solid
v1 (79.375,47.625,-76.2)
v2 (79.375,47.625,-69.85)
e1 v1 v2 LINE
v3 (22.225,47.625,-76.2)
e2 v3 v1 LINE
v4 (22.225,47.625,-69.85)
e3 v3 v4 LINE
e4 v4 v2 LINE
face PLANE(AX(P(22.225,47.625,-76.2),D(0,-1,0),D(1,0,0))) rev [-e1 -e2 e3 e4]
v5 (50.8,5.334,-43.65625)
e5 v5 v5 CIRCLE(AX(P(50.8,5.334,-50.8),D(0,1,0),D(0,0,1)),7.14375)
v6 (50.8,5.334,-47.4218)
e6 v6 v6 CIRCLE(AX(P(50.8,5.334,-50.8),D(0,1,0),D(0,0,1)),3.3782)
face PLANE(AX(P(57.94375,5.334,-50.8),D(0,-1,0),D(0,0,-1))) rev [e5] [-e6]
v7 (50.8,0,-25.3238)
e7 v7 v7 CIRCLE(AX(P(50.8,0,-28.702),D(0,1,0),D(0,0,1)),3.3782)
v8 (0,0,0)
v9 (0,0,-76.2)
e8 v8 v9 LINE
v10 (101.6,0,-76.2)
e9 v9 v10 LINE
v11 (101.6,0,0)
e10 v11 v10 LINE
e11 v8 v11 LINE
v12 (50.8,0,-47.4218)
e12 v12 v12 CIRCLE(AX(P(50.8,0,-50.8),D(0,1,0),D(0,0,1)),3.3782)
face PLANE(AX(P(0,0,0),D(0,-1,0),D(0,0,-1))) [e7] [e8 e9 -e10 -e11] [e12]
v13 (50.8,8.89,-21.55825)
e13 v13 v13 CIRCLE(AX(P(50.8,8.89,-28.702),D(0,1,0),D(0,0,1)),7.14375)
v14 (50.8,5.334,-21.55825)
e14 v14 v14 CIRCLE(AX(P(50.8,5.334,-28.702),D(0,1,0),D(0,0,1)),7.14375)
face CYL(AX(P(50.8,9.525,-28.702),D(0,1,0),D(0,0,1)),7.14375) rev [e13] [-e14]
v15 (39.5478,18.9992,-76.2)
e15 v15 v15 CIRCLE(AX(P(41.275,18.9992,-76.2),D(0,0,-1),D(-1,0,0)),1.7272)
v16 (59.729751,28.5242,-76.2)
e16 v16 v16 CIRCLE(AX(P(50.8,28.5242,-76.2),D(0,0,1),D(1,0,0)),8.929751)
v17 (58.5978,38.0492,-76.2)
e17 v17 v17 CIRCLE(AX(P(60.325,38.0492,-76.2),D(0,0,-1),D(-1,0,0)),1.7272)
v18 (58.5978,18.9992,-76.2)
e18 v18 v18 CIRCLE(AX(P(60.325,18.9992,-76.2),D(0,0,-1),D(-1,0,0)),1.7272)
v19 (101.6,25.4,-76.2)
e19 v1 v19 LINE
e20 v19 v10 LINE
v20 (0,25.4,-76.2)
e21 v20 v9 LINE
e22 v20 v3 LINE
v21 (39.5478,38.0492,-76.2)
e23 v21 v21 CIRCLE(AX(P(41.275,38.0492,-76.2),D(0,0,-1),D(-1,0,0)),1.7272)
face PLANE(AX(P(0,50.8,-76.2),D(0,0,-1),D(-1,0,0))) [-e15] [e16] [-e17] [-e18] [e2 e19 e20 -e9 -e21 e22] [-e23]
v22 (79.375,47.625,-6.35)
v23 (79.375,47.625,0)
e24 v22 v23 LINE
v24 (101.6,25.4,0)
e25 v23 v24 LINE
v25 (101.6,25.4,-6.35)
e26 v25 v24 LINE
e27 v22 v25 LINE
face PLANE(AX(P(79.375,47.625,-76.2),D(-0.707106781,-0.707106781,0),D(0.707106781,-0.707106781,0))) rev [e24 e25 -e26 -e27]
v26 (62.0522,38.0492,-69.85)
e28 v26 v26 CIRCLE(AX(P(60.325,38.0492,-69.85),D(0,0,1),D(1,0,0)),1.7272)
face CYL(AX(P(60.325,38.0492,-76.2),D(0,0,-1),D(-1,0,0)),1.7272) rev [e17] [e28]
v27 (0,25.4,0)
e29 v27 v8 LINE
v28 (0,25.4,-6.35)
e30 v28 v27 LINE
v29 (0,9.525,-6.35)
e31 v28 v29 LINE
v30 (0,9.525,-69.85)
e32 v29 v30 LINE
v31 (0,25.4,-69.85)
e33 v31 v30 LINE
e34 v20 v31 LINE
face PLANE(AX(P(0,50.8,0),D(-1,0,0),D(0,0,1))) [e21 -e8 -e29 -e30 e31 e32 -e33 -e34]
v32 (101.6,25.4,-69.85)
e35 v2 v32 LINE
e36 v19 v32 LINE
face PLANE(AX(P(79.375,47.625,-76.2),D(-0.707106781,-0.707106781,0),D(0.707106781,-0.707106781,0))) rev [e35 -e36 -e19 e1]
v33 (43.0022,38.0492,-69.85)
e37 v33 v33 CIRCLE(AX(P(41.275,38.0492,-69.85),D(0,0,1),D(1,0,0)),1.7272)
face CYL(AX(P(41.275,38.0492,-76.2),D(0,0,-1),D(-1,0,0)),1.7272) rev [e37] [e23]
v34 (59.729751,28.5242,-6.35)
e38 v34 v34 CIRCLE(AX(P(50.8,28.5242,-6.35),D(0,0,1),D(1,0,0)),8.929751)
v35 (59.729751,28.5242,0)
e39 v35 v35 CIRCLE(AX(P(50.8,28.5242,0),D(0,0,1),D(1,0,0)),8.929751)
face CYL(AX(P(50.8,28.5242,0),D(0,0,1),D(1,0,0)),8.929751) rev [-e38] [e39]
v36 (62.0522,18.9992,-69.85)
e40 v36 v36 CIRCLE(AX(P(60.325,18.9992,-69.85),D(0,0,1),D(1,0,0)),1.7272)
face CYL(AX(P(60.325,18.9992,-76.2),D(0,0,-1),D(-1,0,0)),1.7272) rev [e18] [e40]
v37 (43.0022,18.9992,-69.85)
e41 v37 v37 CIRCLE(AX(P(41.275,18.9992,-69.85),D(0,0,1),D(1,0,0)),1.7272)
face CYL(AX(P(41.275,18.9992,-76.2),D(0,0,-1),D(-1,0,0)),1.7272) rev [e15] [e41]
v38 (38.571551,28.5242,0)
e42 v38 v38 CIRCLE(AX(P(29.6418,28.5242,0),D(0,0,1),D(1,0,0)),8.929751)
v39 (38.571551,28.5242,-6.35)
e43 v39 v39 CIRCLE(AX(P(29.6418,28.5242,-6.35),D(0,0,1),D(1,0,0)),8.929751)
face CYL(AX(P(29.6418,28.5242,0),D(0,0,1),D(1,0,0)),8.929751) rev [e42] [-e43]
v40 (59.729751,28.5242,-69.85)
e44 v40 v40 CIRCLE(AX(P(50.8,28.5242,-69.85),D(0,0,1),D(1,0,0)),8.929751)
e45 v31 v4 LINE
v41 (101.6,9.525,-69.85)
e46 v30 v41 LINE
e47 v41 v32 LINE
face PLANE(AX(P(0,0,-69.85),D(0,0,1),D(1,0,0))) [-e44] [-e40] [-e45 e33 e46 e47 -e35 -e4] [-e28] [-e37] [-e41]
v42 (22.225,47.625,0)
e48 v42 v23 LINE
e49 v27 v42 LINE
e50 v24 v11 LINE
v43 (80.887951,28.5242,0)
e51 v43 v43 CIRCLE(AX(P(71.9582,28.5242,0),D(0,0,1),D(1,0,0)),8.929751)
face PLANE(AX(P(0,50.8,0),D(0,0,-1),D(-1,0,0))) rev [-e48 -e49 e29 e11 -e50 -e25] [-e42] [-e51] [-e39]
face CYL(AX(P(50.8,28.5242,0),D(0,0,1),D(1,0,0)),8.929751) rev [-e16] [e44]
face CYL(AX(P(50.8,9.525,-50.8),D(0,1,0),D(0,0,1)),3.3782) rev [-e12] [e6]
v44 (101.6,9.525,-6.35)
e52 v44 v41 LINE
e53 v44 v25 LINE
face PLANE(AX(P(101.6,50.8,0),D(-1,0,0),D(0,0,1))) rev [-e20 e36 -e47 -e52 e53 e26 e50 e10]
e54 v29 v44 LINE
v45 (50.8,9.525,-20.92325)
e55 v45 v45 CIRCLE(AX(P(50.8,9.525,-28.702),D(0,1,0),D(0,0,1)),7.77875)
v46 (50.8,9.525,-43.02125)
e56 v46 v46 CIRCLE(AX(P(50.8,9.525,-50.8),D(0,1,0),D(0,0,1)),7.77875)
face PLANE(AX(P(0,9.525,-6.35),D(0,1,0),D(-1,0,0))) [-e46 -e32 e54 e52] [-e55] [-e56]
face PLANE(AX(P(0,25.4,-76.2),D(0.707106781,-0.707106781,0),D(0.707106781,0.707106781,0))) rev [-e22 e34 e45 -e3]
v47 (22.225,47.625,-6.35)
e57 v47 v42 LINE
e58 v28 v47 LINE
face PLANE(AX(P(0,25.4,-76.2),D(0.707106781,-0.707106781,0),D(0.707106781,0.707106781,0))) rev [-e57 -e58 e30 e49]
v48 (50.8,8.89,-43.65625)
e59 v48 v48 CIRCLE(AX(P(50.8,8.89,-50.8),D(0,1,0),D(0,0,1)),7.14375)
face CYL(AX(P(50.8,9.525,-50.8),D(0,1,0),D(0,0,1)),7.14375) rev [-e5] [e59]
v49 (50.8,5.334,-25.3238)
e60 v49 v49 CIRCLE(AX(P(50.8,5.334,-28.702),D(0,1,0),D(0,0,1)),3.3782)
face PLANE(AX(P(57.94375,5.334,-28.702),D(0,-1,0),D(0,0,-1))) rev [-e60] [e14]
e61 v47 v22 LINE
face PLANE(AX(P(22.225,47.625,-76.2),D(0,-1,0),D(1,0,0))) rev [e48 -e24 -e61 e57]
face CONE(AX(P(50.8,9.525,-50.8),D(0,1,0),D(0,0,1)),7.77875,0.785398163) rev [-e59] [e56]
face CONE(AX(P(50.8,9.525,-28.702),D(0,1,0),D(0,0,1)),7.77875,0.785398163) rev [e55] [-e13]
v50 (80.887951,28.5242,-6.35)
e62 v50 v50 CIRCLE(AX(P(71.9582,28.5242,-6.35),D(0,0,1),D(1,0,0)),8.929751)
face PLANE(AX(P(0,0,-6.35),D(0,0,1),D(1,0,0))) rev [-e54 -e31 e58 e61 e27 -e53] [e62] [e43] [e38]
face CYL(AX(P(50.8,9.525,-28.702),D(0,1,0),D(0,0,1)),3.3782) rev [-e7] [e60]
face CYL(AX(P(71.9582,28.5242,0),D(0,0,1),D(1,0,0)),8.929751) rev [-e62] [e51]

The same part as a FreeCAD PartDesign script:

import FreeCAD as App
import Part
import Sketcher
from FreeCAD import Vector
Q = App.Units.Quantity


def add_polygon(sketch, points):
    """Adds a closed chain of lines whose ends are joined by coincident constraints."""
    first, n = sketch.GeometryCount, len(points)
    for a, b in zip(points, points[1:] + points[:1]):
        sketch.addGeometry(Part.LineSegment(App.Vector(*a, 0), App.Vector(*b, 0)), False)
    for i in range(n):
        sketch.addConstraint(Sketcher.Constraint("Coincident", first + i, 2, first + (i + 1) % n, 1))

doc = App.newDocument("Part")
params = doc.addObject("Spreadsheet::Sheet", "Params")
for row, (alias, value) in enumerate([
    ("sketch1_width", "4 in"),
    ("sketch1_height", "3 in"),
    ("pad1_length", "2 in"),
    ("sketch2_width", "4 in"),
    ("sketch2_height", "1.625 in"),
    ("pocket1_length", "1.25 in"),
    ("pocket1_length2", "1.25 in"),
    ("hole_diameter", "17.859502 mm"),
    ("hole2_diameter", "17.859502 mm"),
    ("hole2_depth", "1 in"),
    ("sketch5_width", "0.14 in"),
    ("sketch5_width2", "0.21 in"),
    ("sketch5_width3", "0.375 in"),
    ("sketch5_height", "0.133 in"),
    ("groove_angle", "360 deg"),
    ("linearpattern_pitch", "0.87 in"),
    ("sketch6_width", "4 in"),
    ("sketch6_height", "1 in"),
    ("sketch6_width2", "2.25 in"),
    ("sketch7_diameter", "0.136 in"),
    ("hole3_diameter", "0.136 in"),
    ("hole3_depth", "0.25 in"),
], start=1):
    params.set(f"A{row}", alias)
    params.set(f"B{row}", "=" + value)
    params.setAlias(f"B{row}", alias)

body = doc.addObject("PartDesign::Body", "Body")

sketch1 = doc.addObject("Sketcher::SketchObject", "Sketch")
body.addObject(sketch1)
sketch1.AttachmentSupport = (doc.XZ_Plane, [""])
sketch1.MapMode = "FlatFace"
add_polygon(sketch1, [(0, -76.2), (0, 0), (101.6, 0), (101.6, -76.2)])
sketch1.addConstraint(Sketcher.Constraint("Vertical", 0))
sketch1.addConstraint(Sketcher.Constraint("Horizontal", 1))
sketch1.addConstraint(Sketcher.Constraint("Vertical", 2))
sketch1.addConstraint(Sketcher.Constraint("Horizontal", 3))
sketch1.addConstraint(Sketcher.Constraint("Coincident", 0, 2, -1, 1))
sketch1.addConstraint(Sketcher.Constraint("DistanceX", 1, 1, 1, 2, Q("4 in")))
sketch1.addConstraint(Sketcher.Constraint("DistanceY", 0, 1, 0, 2, Q("3 in")))
sketch1.setExpression("Constraints[9]", "Params.sketch1_width")
sketch1.setExpression("Constraints[10]", "Params.sketch1_height")
pad1 = doc.addObject("PartDesign::Pad", "Pad")
body.addObject(pad1)
pad1.Profile = sketch1
pad1.setExpression("Length", "Params.pad1_length")
pad1.Reversed = True

sketch2 = doc.addObject("Sketcher::SketchObject", "Sketch001")
body.addObject(sketch2)
sketch2.AttachmentSupport = (doc.XY_Plane, [""])
sketch2.MapMode = "FlatFace"
sketch2.AttachmentOffset = App.Placement(Vector(0, 0, -1.5 * 25.4), App.Rotation())
add_polygon(sketch2, [(0, 50.8), (0, 9.525), (101.6, 9.525), (101.6, 50.8)])
sketch2.addConstraint(Sketcher.Constraint("Vertical", 0))
sketch2.addConstraint(Sketcher.Constraint("Horizontal", 1))
sketch2.addConstraint(Sketcher.Constraint("Vertical", 2))
sketch2.addConstraint(Sketcher.Constraint("Horizontal", 3))
sketch2.addConstraint(Sketcher.Constraint("PointOnObject", 0, 2, -2))
sketch2.addConstraint(Sketcher.Constraint("DistanceX", 1, 1, 1, 2, Q("4 in")))
sketch2.addConstraint(Sketcher.Constraint("DistanceY", -1, 1, 2, 2, Q("2 in")))
sketch2.addConstraint(Sketcher.Constraint("DistanceY", 0, 2, 0, 1, Q("1.625 in")))
sketch2.setExpression("Constraints[9]", "Params.sketch2_width")
sketch2.setExpression("Constraints[11]", "Params.sketch2_height")
pocket1 = doc.addObject("PartDesign::Pocket", "Pocket")
body.addObject(pocket1)
pocket1.Profile = sketch2
pocket1.Type = "TwoLengths"
pocket1.setExpression("Length", "Params.pocket1_length")
pocket1.setExpression("Length2", "Params.pocket1_length2")
pocket1.Reversed = True

sketch3 = doc.addObject("Sketcher::SketchObject", "Sketch002")
body.addObject(sketch3)
sketch3.AttachmentSupport = (doc.XY_Plane, [""])
sketch3.MapMode = "FlatFace"
sketch3.addGeometry(Part.Circle(Vector(50.8, 28.5242, 0), Vector(0, 0, 1), 8.929751), False)
sketch3.addConstraint(Sketcher.Constraint("DistanceX", -1, 1, 0, 3, Q("2 in")))
sketch3.addConstraint(Sketcher.Constraint("Diameter", 0, 17.859502))
sketch3.addConstraint(Sketcher.Constraint("DistanceY", -1, 1, 0, 3, Q("1.123 in")))
doc.recompute()
hole = doc.addObject("PartDesign::Hole", "Hole")
body.addObject(hole)
hole.Profile = sketch3
hole.ThreadType = "None"
hole.setExpression("Diameter", "Params.hole_diameter")
hole.DepthType = "ThroughAll"

sketch4 = doc.addObject("Sketcher::SketchObject", "Sketch003")
body.addObject(sketch4)
sketch4.AttachmentSupport = (doc.XY_Plane, [""])
sketch4.MapMode = "FlatFace"
sketch4.addGeometry(Part.Circle(Vector(29.6418, 28.5242, 0), Vector(0, 0, 1), 8.929751), False)
sketch4.addGeometry(Part.Circle(Vector(71.9582, 28.5242, 0), Vector(0, 0, 1), 8.929751), False)
sketch4.addConstraint(Sketcher.Constraint("Equal", 0, 1))
sketch4.addConstraint(Sketcher.Constraint("Horizontal", 0, 3, 1, 3))
sketch4.addConstraint(Sketcher.Constraint("Diameter", 0, 17.859502))
sketch4.addConstraint(Sketcher.Constraint("DistanceX", -1, 1, 0, 3, Q("1.167 in")))
sketch4.addConstraint(Sketcher.Constraint("DistanceY", -1, 1, 0, 3, Q("1.123 in")))
sketch4.addConstraint(Sketcher.Constraint("DistanceX", -1, 1, 1, 3, Q("2.833 in")))
doc.recompute()
hole2 = doc.addObject("PartDesign::Hole", "Hole001")
body.addObject(hole2)
hole2.Profile = sketch4
hole2.ThreadType = "None"
hole2.setExpression("Diameter", "Params.hole2_diameter")
hole2.DepthType = "Dimension"
hole2.setExpression("Depth", "Params.hole2_depth")
hole2.DrillPoint = "Angled"
hole2.DrillPointAngle = 118

sketch5 = doc.addObject("Sketcher::SketchObject", "Sketch004")
body.addObject(sketch5)
sketch5.AttachmentSupport = (doc.YZ_Plane, [""])
sketch5.MapMode = "FlatFace"
sketch5.AttachmentOffset = App.Placement(Vector(0, 0, 2 * 25.4), App.Rotation())
add_polygon(sketch5, [(0, -50.8), (9.525, -50.8), (9.525, -43.02125), (8.89, -43.65625), (5.334, -43.65625), (5.334, -47.4218), (0, -47.4218)])
sketch5.addGeometry(Part.LineSegment(Vector(9.525, -50.8, 0), Vector(0, -50.8, 0)), True)
sketch5.addConstraint(Sketcher.Constraint("Horizontal", 0))
sketch5.addConstraint(Sketcher.Constraint("Vertical", 1))
sketch5.addConstraint(Sketcher.Constraint("Horizontal", 3))
sketch5.addConstraint(Sketcher.Constraint("Vertical", 4))
sketch5.addConstraint(Sketcher.Constraint("Horizontal", 5))
sketch5.addConstraint(Sketcher.Constraint("Vertical", 6))
sketch5.addConstraint(Sketcher.Constraint("Horizontal", 7))
sketch5.addConstraint(Sketcher.Constraint("Coincident", 7, 1, 0, 2))
sketch5.addConstraint(Sketcher.Constraint("PointOnObject", 5, 2, -2))
sketch5.addConstraint(Sketcher.Constraint("PointOnObject", 7, 2, -2))
sketch5.addConstraint(Sketcher.Constraint("DistanceY", 0, 2, -1, 1, Q("2 in")))
sketch5.addConstraint(Sketcher.Constraint("Angle", 2, Q("-135 deg")))
sketch5.addConstraint(Sketcher.Constraint("DistanceX", 3, 2, 3, 1, Q("0.14 in")))
sketch5.addConstraint(Sketcher.Constraint("DistanceX", 5, 2, 5, 1, Q("0.21 in")))
sketch5.addConstraint(Sketcher.Constraint("DistanceX", 0, 1, 0, 2, Q("0.375 in")))
sketch5.addConstraint(Sketcher.Constraint("DistanceY", 6, 2, 6, 1, Q("0.133 in")))
sketch5.addConstraint(Sketcher.Constraint("DistanceY", 2, 2, -1, 1, Q("1.71875 in")))
sketch5.setExpression("Constraints[19]", "Params.sketch5_width")
sketch5.setExpression("Constraints[20]", "Params.sketch5_width2")
sketch5.setExpression("Constraints[21]", "Params.sketch5_width3")
sketch5.setExpression("Constraints[22]", "Params.sketch5_height")
groove = doc.addObject("PartDesign::Groove", "Groove")
body.addObject(groove)
groove.Profile = sketch5
groove.ReferenceAxis = (sketch5, ["Axis0"])
groove.setExpression("Angle", "Params.groove_angle")
doc.recompute()

linearpattern = doc.addObject("PartDesign::LinearPattern", "LinearPattern")
body.addObject(linearpattern)
linearpattern.Originals = [groove]
linearpattern.Direction = (doc.Z_Axis, [""])
linearpattern.Mode = "offset"
linearpattern.setExpression("Offset", "Params.linearpattern_pitch")
linearpattern.Occurrences = 2
body.Tip = linearpattern

sketch6 = doc.addObject("Sketcher::SketchObject", "Sketch005")
body.addObject(sketch6)
sketch6.AttachmentSupport = (doc.XY_Plane, [""])
sketch6.MapMode = "FlatFace"
add_polygon(sketch6, [(0, 25.4), (22.225, 47.625), (79.375, 47.625), (101.6, 25.4), (101.6, 50.8), (0, 50.8)])
sketch6.addConstraint(Sketcher.Constraint("Horizontal", 1))
sketch6.addConstraint(Sketcher.Constraint("Vertical", 3))
sketch6.addConstraint(Sketcher.Constraint("Horizontal", 4))
sketch6.addConstraint(Sketcher.Constraint("Vertical", 5))
sketch6.addConstraint(Sketcher.Constraint("PointOnObject", 4, 2, -2))
sketch6.addConstraint(Sketcher.Constraint("Perpendicular", 0, 2))
sketch6.addConstraint(Sketcher.Constraint("Horizontal", 2, 2, 5, 2))
sketch6.addConstraint(Sketcher.Constraint("Equal", 0, 2))
sketch6.addConstraint(Sketcher.Constraint("DistanceX", 4, 2, 4, 1, Q("4 in")))
sketch6.addConstraint(Sketcher.Constraint("DistanceY", 3, 1, 3, 2, Q("1 in")))
sketch6.addConstraint(Sketcher.Constraint("DistanceY", -1, 1, 2, 2, Q("1 in")))
sketch6.addConstraint(Sketcher.Constraint("DistanceX", 1, 1, 1, 2, Q("2.25 in")))
sketch6.setExpression("Constraints[14]", "Params.sketch6_width")
sketch6.setExpression("Constraints[15]", "Params.sketch6_height")
sketch6.setExpression("Constraints[17]", "Params.sketch6_width2")
pocket2 = doc.addObject("PartDesign::Pocket", "Pocket001")
body.addObject(pocket2)
pocket2.Profile = sketch6
pocket2.Type = "ThroughAll"

sketch7 = doc.addObject("Sketcher::SketchObject", "Sketch006")
body.addObject(sketch7)
sketch7.AttachmentSupport = (doc.XY_Plane, [""])
sketch7.MapMode = "FlatFace"
sketch7.AttachmentOffset = App.Placement(Vector(0, 0, -3 * 25.4), App.Rotation())
sketch7.addGeometry(Part.Circle(Vector(41.275, 38.0492, 0), Vector(0, 0, 1), 1.7272), False)
sketch7.addGeometry(Part.Circle(Vector(60.325, 18.9992, 0), Vector(0, 0, 1), 1.7272), False)
sketch7.addGeometry(Part.Circle(Vector(60.325, 38.0492, 0), Vector(0, 0, 1), 1.7272), False)
sketch7.addGeometry(Part.Circle(Vector(41.275, 18.9992, 0), Vector(0, 0, 1), 1.7272), False)
sketch7.addConstraint(Sketcher.Constraint("Equal", 0, 1))
sketch7.addConstraint(Sketcher.Constraint("Equal", 1, 2))
sketch7.addConstraint(Sketcher.Constraint("Equal", 2, 3))
sketch7.addConstraint(Sketcher.Constraint("Horizontal", 0, 3, 2, 3))
sketch7.addConstraint(Sketcher.Constraint("Horizontal", 1, 3, 3, 3))
sketch7.addConstraint(Sketcher.Constraint("Vertical", 1, 3, 2, 3))
sketch7.addConstraint(Sketcher.Constraint("Vertical", 0, 3, 3, 3))
sketch7.addConstraint(Sketcher.Constraint("Diameter", 0, Q("0.136 in")))
sketch7.addConstraint(Sketcher.Constraint("DistanceX", 0, 3, 1, 3, Q("0.75 in")))
sketch7.addConstraint(Sketcher.Constraint("DistanceY", 1, 3, 0, 3, Q("0.75 in")))
sketch7.addConstraint(Sketcher.Constraint("DistanceX", -1, 1, 0, 3, Q("1.625 in")))
sketch7.addConstraint(Sketcher.Constraint("DistanceY", -1, 1, 0, 3, Q("1.498 in")))
sketch7.setExpression("Constraints[7]", "Params.sketch7_diameter")
doc.recompute()
hole3 = doc.addObject("PartDesign::Hole", "Hole002")
body.addObject(hole3)
hole3.Profile = sketch7
hole3.ThreadType = "None"
hole3.setExpression("Diameter", "Params.hole3_diameter")
hole3.DepthType = "Dimension"
hole3.setExpression("Depth", "Params.hole3_depth")
hole3.DrillPoint = "Flat"
hole3.Reversed = True

doc.recompute()
